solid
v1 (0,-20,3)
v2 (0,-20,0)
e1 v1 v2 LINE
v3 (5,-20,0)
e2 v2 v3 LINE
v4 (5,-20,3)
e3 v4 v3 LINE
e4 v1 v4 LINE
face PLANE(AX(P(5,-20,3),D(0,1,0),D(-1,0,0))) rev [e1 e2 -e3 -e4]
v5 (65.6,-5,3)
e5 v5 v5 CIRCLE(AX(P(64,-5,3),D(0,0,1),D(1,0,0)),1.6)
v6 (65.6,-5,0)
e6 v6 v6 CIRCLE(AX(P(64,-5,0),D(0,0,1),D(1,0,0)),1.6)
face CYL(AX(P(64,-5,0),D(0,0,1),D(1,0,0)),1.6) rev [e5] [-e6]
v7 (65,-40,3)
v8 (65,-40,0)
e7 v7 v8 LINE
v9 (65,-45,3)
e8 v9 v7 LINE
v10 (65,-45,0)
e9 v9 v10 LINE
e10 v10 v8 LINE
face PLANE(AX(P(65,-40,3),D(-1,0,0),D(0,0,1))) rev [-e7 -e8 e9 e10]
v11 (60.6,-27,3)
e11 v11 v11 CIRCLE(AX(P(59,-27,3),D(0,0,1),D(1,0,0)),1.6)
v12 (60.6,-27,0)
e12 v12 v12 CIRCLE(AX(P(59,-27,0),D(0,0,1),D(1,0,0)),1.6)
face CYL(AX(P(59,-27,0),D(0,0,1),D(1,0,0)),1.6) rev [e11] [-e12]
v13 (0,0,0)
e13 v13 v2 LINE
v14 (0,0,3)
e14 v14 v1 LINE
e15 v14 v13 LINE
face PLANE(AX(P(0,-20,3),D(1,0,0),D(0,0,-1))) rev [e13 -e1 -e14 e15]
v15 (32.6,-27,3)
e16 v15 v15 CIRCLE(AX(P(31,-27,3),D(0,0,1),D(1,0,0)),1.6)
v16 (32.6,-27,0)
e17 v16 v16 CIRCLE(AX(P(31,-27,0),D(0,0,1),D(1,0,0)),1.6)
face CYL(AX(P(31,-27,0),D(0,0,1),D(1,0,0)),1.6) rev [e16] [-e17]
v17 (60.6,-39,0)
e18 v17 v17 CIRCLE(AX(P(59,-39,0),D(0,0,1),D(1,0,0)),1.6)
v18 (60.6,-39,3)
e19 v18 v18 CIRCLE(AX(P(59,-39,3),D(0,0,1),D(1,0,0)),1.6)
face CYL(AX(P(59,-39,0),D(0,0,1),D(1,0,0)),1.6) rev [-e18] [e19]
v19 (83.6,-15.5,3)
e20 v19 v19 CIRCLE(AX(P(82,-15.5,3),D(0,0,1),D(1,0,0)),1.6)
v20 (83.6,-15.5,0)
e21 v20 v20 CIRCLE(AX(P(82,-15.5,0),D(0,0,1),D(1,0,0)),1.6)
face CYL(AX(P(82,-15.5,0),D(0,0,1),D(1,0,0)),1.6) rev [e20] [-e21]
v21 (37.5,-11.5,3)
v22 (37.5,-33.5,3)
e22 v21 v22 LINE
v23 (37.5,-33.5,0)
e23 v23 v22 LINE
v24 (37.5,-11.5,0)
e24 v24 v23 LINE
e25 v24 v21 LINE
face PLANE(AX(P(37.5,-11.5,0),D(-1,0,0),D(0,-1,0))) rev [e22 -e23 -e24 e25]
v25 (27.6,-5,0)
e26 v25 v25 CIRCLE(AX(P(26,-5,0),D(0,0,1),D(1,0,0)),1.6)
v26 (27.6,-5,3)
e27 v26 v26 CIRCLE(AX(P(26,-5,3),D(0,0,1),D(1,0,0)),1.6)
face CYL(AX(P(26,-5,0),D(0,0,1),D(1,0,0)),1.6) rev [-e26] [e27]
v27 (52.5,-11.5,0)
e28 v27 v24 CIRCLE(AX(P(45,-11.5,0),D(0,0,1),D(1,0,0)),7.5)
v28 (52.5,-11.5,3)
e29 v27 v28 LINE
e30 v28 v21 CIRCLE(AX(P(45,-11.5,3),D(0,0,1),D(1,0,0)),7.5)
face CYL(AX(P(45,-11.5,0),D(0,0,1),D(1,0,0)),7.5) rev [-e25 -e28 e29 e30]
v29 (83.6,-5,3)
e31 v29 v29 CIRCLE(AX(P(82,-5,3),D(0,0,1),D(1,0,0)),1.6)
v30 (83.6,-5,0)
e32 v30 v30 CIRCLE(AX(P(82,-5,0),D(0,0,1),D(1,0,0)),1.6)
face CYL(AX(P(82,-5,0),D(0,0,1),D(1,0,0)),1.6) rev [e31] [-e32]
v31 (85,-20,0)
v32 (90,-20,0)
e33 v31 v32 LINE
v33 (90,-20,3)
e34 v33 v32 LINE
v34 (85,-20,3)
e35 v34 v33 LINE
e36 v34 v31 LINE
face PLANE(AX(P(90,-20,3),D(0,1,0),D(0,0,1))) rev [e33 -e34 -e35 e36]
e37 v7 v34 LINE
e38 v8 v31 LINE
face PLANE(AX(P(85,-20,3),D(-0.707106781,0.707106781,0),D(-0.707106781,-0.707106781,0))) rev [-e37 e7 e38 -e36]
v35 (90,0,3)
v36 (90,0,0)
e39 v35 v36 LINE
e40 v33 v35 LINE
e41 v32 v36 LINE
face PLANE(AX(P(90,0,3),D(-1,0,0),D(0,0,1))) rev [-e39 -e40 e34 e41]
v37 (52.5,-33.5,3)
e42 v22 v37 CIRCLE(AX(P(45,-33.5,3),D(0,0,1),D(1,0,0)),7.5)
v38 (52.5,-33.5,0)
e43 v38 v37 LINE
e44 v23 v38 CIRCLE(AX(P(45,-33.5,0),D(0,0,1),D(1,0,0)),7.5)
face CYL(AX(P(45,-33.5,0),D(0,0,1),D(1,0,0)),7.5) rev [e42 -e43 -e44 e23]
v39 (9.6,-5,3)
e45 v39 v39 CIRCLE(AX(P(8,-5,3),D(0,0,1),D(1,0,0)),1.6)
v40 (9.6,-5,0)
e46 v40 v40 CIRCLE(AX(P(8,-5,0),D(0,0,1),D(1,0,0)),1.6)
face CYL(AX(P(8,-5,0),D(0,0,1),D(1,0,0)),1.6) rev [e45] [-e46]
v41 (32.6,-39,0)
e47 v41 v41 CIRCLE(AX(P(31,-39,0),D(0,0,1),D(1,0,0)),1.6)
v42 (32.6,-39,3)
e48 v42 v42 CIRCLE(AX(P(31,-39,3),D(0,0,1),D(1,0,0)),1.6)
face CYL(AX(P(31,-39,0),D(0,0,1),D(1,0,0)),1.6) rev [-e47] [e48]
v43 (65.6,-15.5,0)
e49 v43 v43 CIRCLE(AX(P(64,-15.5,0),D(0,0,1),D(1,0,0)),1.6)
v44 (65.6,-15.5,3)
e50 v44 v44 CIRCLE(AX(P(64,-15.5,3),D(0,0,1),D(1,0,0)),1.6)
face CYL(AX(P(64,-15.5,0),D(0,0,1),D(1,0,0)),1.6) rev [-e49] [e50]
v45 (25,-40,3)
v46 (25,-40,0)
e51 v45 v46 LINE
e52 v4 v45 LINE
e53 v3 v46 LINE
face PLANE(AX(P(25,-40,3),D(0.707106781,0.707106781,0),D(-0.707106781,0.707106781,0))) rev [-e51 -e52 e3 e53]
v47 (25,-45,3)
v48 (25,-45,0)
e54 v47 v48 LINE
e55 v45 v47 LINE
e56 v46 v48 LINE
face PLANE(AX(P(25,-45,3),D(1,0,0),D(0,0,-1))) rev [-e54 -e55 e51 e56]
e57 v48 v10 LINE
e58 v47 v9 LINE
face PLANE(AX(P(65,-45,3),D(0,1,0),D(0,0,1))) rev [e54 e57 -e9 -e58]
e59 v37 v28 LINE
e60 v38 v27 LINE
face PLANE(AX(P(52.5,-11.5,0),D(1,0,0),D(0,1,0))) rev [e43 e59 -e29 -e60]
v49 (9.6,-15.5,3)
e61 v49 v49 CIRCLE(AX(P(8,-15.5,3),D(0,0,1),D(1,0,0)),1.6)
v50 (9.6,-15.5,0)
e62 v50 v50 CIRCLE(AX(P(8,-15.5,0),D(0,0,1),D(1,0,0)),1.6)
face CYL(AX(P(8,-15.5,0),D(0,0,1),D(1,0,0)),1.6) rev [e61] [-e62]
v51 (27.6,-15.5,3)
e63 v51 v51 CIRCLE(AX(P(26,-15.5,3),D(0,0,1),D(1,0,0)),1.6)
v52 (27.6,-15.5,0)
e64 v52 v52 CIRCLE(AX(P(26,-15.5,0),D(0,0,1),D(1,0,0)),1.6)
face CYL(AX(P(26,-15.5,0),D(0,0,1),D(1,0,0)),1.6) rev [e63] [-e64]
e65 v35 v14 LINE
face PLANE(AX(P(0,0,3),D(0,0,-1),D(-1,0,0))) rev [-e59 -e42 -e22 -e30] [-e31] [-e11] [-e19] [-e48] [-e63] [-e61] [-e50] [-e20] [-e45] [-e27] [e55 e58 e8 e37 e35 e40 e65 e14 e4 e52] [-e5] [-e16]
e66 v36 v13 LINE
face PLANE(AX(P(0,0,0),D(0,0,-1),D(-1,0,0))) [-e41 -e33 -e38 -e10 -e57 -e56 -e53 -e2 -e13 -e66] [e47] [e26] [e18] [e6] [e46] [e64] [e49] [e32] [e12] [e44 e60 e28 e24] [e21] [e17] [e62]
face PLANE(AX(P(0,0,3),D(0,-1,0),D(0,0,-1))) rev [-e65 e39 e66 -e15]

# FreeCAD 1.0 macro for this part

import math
import FreeCAD as App
import Part
import Sketcher


def add_polygon(sketch, points):
    """Adds a closed chain of lines whose ends are joined by coincident constraints."""
    first, n = sketch.GeometryCount, len(points)
    for a, b in zip(points, points[1:] + points[:1]):
        sketch.addGeometry(Part.LineSegment(App.Vector(*a, 0), App.Vector(*b, 0)), False)
    for i in range(n):
        sketch.addConstraint(Sketcher.Constraint("Coincident", first + i, 2, first + (i + 1) % n, 1))

doc = App.newDocument("Part")
body = doc.addObject("PartDesign::Body", "Body")

sketch1 = body.newObject("Sketcher::SketchObject", "Sketch")
sketch1.AttachmentSupport = (doc.getObject("XY_Plane"), [""])
sketch1.MapMode = "FlatFace"
add_polygon(sketch1, [(90, 0), (0, 0), (0, -20), (5, -20), (25, -40), (25, -45), (65, -45), (65, -40), (85, -20), (90, -20)])
sketch1.addConstraint(Sketcher.Constraint("Horizontal", 0))
sketch1.addConstraint(Sketcher.Constraint("Vertical", 1))
sketch1.addConstraint(Sketcher.Constraint("Horizontal", 2))
sketch1.addConstraint(Sketcher.Constraint("Vertical", 4))
sketch1.addConstraint(Sketcher.Constraint("Horizontal", 5))
sketch1.addConstraint(Sketcher.Constraint("Vertical", 6))
sketch1.addConstraint(Sketcher.Constraint("Horizontal", 8))
sketch1.addConstraint(Sketcher.Constraint("Vertical", 9))
sketch1.addConstraint(Sketcher.Constraint("Coincident", 0, 2, -1, 1))
sketch1.addConstraint(Sketcher.Constraint("Perpendicular", 3, 7))
sketch1.addConstraint(Sketcher.Constraint("Horizontal", 3, 2, 6, 2))
sketch1.addConstraint(Sketcher.Constraint("Horizontal", 2, 2, 7, 2))
sketch1.addConstraint(Sketcher.Constraint("Equal", 2, 8))
sketch1.addConstraint(Sketcher.Constraint("Equal", 8, 4))
sketch1.addConstraint(Sketcher.Constraint("Equal", 3, 7))
sketch1.addConstraint(Sketcher.Constraint("DistanceX", 0, 2, 0, 1, 90.0))
sketch1.addConstraint(Sketcher.Constraint("DistanceX", 2, 1, 2, 2, 5.0))
sketch1.addConstraint(Sketcher.Constraint("DistanceX", 5, 1, 5, 2, 40.0))
sketch1.addConstraint(Sketcher.Constraint("DistanceY", 1, 2, 1, 1, 20.0))
pad1 = body.newObject("PartDesign::Pad", "Pad")
pad1.Profile = sketch1
pad1.Length = 3

sketch2 = body.newObject("Sketcher::SketchObject", "Sketch001")
sketch2.AttachmentSupport = (doc.getObject("XY_Plane"), [""])
sketch2.MapMode = "FlatFace"
sketch2.AttachmentOffset = App.Placement(App.Vector(0, 0, 3), App.Rotation())
sketch2.addGeometry(Part.Circle(App.Vector(82, -5, 0), App.Vector(0, 0, 1), 1.6), False)
sketch2.addGeometry(Part.Circle(App.Vector(82, -15.5, 0), App.Vector(0, 0, 1), 1.6), False)
sketch2.addGeometry(Part.Circle(App.Vector(64, -15.5, 0), App.Vector(0, 0, 1), 1.6), False)
sketch2.addGeometry(Part.Circle(App.Vector(64, -5, 0), App.Vector(0, 0, 1), 1.6), False)
sketch2.addGeometry(Part.Circle(App.Vector(26, -5, 0), App.Vector(0, 0, 1), 1.6), False)
sketch2.addGeometry(Part.Circle(App.Vector(26, -15.5, 0), App.Vector(0, 0, 1), 1.6), False)
sketch2.addGeometry(Part.Circle(App.Vector(8, -5, 0), App.Vector(0, 0, 1), 1.6), False)
sketch2.addGeometry(Part.Circle(App.Vector(8, -15.5, 0), App.Vector(0, 0, 1), 1.6), False)
sketch2.addGeometry(Part.Circle(App.Vector(31, -27, 0), App.Vector(0, 0, 1), 1.6), False)
sketch2.addGeometry(Part.Circle(App.Vector(31, -39, 0), App.Vector(0, 0, 1), 1.6), False)
sketch2.addGeometry(Part.Circle(App.Vector(59, -27, 0), App.Vector(0, 0, 1), 1.6), False)
sketch2.addGeometry(Part.Circle(App.Vector(59, -39, 0), App.Vector(0, 0, 1), 1.6), False)
sketch2.addGeometry(Part.LineSegment(App.Vector(52.5, -33.5, 0), App.Vector(52.5, -11.5, 0)), False)
sketch2.addGeometry(Part.ArcOfCircle(Part.Circle(App.Vector(45, -11.5, 0), App.Vector(0, 0, 1), 7.5), math.radians(0), math.radians(180)), False)
sketch2.addGeometry(Part.LineSegment(App.Vector(37.5, -11.5, 0), App.Vector(37.5, -33.5, 0)), False)
sketch2.addGeometry(Part.ArcOfCircle(Part.Circle(App.Vector(45, -33.5, 0), App.Vector(0, 0, 1), 7.5), math.radians(180), math.radians(360)), False)
sketch2.addConstraint(Sketcher.Constraint("Tangent", 12, 2, 13, 1))
sketch2.addConstraint(Sketcher.Constraint("Tangent", 13, 2, 14, 1))
sketch2.addConstraint(Sketcher.Constraint("Tangent", 14, 2, 15, 1))
sketch2.addConstraint(Sketcher.Constraint("Tangent", 15, 2, 12, 1))
sketch2.addConstraint(Sketcher.Constraint("Vertical", 12))
sketch2.addConstraint(Sketcher.Constraint("Vertical", 14))
sketch2.addConstraint(Sketcher.Constraint("Equal", 0, 1))
sketch2.addConstraint(Sketcher.Constraint("Equal", 1, 2))
sketch2.addConstraint(Sketcher.Constraint("Equal", 2, 3))
sketch2.addConstraint(Sketcher.Constraint("Equal", 3, 4))
sketch2.addConstraint(Sketcher.Constraint("Equal", 4, 5))
sketch2.addConstraint(Sketcher.Constraint("Equal", 5, 6))
sketch2.addConstraint(Sketcher.Constraint("Equal", 6, 7))
sketch2.addConstraint(Sketcher.Constraint("Equal", 7, 8))
sketch2.addConstraint(Sketcher.Constraint("Equal", 8, 9))
sketch2.addConstraint(Sketcher.Constraint("Equal", 9, 10))
sketch2.addConstraint(Sketcher.Constraint("Equal", 10, 11))
sketch2.addConstraint(Sketcher.Constraint("Horizontal", 1, 3, 2, 3))
sketch2.addConstraint(Sketcher.Constraint("Horizontal", 0, 3, 3, 3))
sketch2.addConstraint(Sketcher.Constraint("Horizontal", 3, 3, 4, 3))
sketch2.addConstraint(Sketcher.Constraint("Horizontal", 2, 3, 5, 3))
sketch2.addConstraint(Sketcher.Constraint("Horizontal", 4, 3, 6, 3))
sketch2.addConstraint(Sketcher.Constraint("Horizontal", 5, 3, 7, 3))
sketch2.addConstraint(Sketcher.Constraint("Horizontal", 8, 3, 10, 3))
sketch2.addConstraint(Sketcher.Constraint("Horizontal", 9, 3, 11, 3))
sketch2.addConstraint(Sketcher.Constraint("Vertical", 0, 3, 1, 3))
sketch2.addConstraint(Sketcher.Constraint("Vertical", 2, 3, 3, 3))
sketch2.addConstraint(Sketcher.Constraint("Vertical", 4, 3, 5, 3))
sketch2.addConstraint(Sketcher.Constraint("Vertical", 6, 3, 7, 3))
sketch2.addConstraint(Sketcher.Constraint("Vertical", 8, 3, 9, 3))
sketch2.addConstraint(Sketcher.Constraint("Vertical", 10, 3, 11, 3))
sketch2.addConstraint(Sketcher.Constraint("Diameter", 0, 3.2))
sketch2.addConstraint(Sketcher.Constraint("Radius", 13, 7.5))
sketch2.addConstraint(Sketcher.Constraint("DistanceY", 12, 1, 12, 2, 22.0))
sketch2.addConstraint(Sketcher.Constraint("DistanceX", -1, 1, 0, 3, 82.0))
sketch2.addConstraint(Sketcher.Constraint("DistanceY", 0, 3, -1, 1, 5.0))
sketch2.addConstraint(Sketcher.Constraint("DistanceX", -1, 1, 2, 3, 64.0))
sketch2.addConstraint(Sketcher.Constraint("DistanceX", -1, 1, 4, 3, 26.0))
sketch2.addConstraint(Sketcher.Constraint("DistanceX", -1, 1, 6, 3, 8.0))
sketch2.addConstraint(Sketcher.Constraint("DistanceX", -1, 1, 8, 3, 31.0))
sketch2.addConstraint(Sketcher.Constraint("DistanceY", 8, 3, -1, 1, 27.0))
sketch2.addConstraint(Sketcher.Constraint("DistanceY", 9, 3, -1, 1, 39.0))
sketch2.addConstraint(Sketcher.Constraint("DistanceX", -1, 1, 10, 3, 59.0))
sketch2.addConstraint(Sketcher.Constraint("DistanceX", -1, 1, 13, 3, 45.0))
sketch2.addConstraint(Sketcher.Constraint("DistanceY", 2, 3, 13, 3, 4.0))
sketch2.addConstraint(Sketcher.Constraint("DistanceY", 1, 3, -1, 1, 15.5))
pocket1 = body.newObject("PartDesign::Pocket", "Pocket")
pocket1.Profile = sketch2
pocket1.Length = 3

doc.recompute()
